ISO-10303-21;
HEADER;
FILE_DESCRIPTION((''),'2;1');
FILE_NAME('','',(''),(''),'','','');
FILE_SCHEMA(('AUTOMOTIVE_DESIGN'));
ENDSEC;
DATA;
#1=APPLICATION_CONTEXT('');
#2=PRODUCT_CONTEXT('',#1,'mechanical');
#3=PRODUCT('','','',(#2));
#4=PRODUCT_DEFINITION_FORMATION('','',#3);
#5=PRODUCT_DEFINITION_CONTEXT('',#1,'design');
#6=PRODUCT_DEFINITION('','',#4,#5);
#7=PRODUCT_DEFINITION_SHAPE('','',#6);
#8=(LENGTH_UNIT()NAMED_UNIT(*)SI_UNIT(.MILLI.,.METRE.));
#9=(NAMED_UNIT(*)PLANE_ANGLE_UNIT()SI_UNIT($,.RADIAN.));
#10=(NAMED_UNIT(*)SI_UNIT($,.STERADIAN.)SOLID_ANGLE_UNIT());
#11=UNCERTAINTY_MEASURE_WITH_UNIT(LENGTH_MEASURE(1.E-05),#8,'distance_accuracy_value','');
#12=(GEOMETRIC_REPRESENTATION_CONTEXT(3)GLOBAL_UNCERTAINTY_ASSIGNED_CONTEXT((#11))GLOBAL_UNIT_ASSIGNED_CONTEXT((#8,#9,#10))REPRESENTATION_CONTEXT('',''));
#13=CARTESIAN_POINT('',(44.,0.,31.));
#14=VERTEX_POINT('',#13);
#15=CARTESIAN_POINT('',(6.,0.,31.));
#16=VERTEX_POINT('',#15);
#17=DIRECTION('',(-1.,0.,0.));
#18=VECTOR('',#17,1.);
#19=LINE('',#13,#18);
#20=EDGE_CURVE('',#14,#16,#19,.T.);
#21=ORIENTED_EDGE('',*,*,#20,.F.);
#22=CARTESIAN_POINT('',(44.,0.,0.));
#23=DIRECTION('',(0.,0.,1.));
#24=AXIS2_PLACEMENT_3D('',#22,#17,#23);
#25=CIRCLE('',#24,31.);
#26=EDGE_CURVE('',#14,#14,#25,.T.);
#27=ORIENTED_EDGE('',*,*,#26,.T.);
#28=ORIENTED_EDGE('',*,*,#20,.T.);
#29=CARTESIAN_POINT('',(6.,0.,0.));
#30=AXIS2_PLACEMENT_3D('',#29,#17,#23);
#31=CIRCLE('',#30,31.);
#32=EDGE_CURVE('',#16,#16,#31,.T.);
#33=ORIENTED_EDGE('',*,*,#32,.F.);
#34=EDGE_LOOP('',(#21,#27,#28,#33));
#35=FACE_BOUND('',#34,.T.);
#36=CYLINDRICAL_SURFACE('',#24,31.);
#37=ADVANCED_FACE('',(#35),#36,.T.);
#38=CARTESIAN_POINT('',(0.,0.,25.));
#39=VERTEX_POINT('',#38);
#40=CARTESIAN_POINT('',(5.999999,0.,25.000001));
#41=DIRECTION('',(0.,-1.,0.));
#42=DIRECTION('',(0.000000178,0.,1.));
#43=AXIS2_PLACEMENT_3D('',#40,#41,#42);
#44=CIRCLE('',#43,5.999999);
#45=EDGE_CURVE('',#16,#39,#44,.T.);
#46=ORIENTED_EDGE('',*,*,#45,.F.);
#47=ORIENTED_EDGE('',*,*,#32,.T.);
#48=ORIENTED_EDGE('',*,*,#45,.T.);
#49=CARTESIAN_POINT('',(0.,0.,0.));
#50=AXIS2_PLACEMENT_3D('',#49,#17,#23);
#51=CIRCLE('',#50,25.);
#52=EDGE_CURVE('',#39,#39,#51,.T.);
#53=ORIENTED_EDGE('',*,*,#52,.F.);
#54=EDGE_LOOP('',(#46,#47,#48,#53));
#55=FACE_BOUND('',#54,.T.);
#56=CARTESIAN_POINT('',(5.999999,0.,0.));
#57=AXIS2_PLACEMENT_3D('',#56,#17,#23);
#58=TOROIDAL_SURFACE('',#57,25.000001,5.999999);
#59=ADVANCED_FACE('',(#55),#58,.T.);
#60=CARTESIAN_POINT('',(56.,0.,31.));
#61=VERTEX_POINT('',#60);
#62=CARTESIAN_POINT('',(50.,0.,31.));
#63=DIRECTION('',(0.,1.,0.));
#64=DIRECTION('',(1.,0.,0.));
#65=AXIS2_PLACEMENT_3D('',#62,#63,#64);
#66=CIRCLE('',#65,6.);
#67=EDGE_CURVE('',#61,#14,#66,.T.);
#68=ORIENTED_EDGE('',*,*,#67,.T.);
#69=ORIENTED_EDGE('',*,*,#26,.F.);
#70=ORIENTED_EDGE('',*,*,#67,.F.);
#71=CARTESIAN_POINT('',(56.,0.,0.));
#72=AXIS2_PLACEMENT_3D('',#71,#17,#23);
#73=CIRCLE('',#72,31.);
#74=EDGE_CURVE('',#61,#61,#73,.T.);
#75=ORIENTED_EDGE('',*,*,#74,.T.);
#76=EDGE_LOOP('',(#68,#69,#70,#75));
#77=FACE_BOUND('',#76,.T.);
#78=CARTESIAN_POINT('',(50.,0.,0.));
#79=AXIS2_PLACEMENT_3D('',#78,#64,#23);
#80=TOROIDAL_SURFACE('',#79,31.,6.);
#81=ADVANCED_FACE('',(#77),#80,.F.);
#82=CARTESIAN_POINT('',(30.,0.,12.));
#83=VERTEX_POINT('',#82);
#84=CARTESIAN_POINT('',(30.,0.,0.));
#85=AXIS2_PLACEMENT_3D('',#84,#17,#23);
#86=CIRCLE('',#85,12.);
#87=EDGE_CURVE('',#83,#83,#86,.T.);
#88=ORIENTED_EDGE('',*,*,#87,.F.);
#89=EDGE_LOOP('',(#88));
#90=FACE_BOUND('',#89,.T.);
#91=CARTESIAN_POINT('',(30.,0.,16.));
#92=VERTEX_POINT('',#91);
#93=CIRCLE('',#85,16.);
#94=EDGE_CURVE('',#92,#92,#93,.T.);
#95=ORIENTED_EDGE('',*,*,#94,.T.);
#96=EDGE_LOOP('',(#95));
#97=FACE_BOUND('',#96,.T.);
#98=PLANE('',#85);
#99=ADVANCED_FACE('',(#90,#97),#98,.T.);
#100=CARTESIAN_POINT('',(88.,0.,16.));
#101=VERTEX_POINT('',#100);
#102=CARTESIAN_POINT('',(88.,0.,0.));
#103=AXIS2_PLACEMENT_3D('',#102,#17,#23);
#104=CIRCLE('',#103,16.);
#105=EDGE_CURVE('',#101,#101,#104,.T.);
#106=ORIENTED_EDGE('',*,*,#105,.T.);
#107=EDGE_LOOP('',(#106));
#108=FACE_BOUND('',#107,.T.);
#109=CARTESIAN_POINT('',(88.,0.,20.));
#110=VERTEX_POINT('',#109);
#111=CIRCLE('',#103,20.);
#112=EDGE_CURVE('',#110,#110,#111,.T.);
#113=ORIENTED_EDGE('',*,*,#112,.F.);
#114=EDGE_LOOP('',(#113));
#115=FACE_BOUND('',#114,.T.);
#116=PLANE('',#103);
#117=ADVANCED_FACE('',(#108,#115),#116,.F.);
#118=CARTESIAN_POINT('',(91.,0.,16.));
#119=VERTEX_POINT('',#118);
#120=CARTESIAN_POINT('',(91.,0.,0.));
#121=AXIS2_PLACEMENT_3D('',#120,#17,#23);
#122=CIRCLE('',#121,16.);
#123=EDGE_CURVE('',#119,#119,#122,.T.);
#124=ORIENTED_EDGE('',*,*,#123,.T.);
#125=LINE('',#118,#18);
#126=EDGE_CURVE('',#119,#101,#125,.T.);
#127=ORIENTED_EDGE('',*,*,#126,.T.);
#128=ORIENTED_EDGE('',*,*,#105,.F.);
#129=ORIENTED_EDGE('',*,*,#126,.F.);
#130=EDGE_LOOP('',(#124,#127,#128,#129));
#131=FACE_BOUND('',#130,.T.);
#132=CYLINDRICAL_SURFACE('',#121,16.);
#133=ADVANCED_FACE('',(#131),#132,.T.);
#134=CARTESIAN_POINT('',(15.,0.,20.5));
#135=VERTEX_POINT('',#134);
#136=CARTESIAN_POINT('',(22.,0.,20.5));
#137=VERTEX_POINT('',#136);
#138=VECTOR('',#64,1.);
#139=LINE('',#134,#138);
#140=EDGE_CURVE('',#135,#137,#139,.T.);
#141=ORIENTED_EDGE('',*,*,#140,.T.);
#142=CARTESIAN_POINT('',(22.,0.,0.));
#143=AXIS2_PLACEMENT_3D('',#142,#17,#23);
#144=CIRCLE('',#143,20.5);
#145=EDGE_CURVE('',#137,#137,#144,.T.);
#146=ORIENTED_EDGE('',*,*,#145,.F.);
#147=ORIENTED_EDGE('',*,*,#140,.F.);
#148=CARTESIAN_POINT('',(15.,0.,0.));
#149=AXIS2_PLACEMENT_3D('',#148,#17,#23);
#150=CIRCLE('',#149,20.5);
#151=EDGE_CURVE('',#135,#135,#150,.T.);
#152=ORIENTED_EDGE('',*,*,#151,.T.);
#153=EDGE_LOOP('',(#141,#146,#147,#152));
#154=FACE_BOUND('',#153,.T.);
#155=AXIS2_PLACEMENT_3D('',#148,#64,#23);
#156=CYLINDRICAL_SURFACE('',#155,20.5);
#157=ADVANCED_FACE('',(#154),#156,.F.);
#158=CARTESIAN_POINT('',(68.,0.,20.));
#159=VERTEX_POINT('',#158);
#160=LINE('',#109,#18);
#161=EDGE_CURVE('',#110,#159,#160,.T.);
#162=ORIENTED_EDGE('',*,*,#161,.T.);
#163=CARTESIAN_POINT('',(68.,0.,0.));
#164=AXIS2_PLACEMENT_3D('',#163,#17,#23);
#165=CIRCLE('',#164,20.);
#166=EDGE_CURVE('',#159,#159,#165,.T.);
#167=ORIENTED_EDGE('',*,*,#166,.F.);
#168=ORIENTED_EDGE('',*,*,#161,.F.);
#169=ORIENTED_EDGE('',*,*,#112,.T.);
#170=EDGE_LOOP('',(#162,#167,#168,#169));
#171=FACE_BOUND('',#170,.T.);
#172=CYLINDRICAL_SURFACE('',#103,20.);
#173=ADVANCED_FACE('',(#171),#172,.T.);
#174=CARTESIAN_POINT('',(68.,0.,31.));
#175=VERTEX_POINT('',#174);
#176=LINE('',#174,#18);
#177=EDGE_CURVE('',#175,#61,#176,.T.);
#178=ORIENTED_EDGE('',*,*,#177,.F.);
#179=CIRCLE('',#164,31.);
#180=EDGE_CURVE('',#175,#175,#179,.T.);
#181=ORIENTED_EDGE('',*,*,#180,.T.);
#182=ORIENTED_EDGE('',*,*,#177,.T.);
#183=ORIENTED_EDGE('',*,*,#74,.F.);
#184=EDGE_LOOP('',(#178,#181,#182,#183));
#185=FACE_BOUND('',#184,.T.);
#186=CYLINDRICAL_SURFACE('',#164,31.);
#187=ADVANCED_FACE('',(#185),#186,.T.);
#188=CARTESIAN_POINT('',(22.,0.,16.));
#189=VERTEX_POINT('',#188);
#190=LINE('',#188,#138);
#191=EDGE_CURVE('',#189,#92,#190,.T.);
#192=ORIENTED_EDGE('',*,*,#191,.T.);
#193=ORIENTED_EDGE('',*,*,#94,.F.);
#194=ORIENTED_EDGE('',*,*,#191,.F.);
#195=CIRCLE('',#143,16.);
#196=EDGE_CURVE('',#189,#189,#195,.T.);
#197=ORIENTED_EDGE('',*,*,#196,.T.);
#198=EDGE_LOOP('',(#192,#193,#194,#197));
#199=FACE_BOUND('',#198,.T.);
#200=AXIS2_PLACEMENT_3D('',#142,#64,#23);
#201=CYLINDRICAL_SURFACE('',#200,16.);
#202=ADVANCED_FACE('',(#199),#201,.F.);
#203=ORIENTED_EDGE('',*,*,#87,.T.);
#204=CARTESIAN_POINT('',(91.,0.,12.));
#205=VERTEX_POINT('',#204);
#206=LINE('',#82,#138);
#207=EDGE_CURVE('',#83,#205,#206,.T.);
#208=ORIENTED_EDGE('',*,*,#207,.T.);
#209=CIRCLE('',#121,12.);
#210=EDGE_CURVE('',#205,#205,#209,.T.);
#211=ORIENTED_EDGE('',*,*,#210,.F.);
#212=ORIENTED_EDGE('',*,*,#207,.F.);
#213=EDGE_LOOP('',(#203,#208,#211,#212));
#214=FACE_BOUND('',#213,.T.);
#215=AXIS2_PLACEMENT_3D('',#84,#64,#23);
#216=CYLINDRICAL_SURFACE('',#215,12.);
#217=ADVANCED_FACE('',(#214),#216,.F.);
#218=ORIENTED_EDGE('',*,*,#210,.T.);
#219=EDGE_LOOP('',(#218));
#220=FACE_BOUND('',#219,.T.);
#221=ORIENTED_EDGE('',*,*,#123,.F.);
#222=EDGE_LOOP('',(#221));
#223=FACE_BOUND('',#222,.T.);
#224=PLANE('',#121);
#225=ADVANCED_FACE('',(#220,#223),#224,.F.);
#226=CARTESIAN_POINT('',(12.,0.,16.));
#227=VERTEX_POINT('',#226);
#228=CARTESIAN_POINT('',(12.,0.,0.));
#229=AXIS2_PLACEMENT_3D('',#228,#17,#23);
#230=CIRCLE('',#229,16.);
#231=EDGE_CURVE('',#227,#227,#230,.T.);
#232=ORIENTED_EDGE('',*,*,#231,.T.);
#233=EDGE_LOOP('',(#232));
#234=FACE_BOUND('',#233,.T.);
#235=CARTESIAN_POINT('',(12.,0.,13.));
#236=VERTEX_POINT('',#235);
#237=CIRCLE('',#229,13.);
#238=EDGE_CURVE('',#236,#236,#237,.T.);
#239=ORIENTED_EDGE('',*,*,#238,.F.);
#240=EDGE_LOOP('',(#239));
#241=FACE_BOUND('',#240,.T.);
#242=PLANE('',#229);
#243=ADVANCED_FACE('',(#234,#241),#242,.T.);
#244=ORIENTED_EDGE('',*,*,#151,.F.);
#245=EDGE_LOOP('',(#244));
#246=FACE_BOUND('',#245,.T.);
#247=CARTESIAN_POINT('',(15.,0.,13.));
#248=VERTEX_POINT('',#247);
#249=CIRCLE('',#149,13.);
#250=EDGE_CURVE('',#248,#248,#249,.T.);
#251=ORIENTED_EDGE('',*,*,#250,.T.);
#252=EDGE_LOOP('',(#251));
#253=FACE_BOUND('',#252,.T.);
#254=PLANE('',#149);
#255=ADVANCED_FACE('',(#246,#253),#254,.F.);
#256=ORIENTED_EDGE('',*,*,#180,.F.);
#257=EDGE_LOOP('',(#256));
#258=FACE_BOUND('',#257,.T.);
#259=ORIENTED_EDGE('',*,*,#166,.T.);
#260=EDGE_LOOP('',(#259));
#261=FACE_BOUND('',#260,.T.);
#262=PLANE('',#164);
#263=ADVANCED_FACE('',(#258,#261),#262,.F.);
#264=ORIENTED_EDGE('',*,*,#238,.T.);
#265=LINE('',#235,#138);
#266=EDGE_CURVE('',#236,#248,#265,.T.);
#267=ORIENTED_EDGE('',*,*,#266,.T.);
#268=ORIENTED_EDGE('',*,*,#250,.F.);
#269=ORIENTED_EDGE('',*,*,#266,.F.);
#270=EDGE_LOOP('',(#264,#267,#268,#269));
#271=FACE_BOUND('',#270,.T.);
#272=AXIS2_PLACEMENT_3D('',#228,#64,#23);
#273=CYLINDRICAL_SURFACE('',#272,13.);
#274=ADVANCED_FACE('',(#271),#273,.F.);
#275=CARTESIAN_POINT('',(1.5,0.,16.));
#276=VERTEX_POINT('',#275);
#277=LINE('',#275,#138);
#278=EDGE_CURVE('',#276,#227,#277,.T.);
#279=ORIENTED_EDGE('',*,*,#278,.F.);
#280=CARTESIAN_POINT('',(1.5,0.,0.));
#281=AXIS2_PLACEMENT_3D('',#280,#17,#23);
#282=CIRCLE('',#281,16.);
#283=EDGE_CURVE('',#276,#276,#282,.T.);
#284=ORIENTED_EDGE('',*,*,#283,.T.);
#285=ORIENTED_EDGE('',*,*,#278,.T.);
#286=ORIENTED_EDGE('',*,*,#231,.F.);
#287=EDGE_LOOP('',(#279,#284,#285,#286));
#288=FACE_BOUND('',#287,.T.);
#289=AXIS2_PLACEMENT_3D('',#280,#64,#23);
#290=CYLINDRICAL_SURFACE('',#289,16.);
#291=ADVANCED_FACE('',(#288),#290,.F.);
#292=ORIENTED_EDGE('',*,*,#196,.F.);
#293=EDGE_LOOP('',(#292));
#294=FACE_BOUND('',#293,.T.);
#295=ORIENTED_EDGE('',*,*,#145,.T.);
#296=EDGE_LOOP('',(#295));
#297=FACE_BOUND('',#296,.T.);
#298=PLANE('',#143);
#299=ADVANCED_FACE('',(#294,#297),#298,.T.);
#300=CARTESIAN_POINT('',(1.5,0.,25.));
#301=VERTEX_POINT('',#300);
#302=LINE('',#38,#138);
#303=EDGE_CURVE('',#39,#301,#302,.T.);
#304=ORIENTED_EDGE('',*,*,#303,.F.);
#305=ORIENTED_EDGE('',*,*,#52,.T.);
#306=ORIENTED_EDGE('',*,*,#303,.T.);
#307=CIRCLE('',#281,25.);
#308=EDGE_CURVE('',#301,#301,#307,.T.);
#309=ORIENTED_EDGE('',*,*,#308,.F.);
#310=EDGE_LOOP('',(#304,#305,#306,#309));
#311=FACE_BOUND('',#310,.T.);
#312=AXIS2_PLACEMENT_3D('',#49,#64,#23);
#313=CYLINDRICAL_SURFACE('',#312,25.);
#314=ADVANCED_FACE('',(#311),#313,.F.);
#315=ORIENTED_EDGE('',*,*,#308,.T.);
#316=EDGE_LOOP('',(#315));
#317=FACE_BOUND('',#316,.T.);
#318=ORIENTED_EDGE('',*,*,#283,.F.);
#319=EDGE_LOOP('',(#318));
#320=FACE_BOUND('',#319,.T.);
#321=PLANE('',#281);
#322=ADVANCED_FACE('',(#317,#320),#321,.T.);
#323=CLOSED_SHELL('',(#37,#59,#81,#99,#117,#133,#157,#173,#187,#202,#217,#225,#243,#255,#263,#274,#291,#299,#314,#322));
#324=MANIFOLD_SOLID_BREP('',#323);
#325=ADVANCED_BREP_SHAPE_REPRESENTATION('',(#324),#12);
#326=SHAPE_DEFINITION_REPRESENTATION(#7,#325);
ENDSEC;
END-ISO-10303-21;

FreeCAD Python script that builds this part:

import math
import FreeCAD as App
import Part
import Sketcher
Q = App.Units.Quantity

doc = App.newDocument("Part")
body = doc.addObject("PartDesign::Body", "Body")

# Sketch on XZ plane
sketch1 = doc.addObject("Sketcher::SketchObject", "Sketch")
body.addObject(sketch1)
sketch1.AttachmentSupport = (doc.XZ_Plane, [""])
sketch1.MapMode = "FlatFace"
sketch1.addGeometry([
    Part.ArcOfCircle(Part.Circle(App.Vector(6, 25, 0), App.Vector(0, 0, 1), 6), math.radians(90), math.radians(180)),  # 0
    Part.LineSegment(App.Vector(0, 25, 0), App.Vector(1.5, 25, 0)),  # 1
    Part.LineSegment(App.Vector(1.5, 25, 0), App.Vector(1.5, 16, 0)),  # 2
    Part.LineSegment(App.Vector(1.5, 16, 0), App.Vector(12, 16, 0)),  # 3
    Part.LineSegment(App.Vector(12, 16, 0), App.Vector(12, 13, 0)),  # 4
    Part.LineSegment(App.Vector(12, 13, 0), App.Vector(15, 13, 0)),  # 5
    Part.LineSegment(App.Vector(15, 13, 0), App.Vector(15, 20.5, 0)),  # 6
    Part.LineSegment(App.Vector(15, 20.5, 0), App.Vector(22, 20.5, 0)),  # 7
    Part.LineSegment(App.Vector(22, 20.5, 0), App.Vector(22, 16, 0)),  # 8
    Part.LineSegment(App.Vector(22, 16, 0), App.Vector(30, 16, 0)),  # 9
    Part.LineSegment(App.Vector(30, 16, 0), App.Vector(30, 12, 0)),  # 10
    Part.LineSegment(App.Vector(30, 12, 0), App.Vector(91, 12, 0)),  # 11
    Part.LineSegment(App.Vector(91, 12, 0), App.Vector(91, 16, 0)),  # 12
    Part.LineSegment(App.Vector(91, 16, 0), App.Vector(88, 16, 0)),  # 13
    Part.LineSegment(App.Vector(88, 16, 0), App.Vector(88, 20, 0)),  # 14
    Part.LineSegment(App.Vector(88, 20, 0), App.Vector(68, 20, 0)),  # 15
    Part.LineSegment(App.Vector(68, 20, 0), App.Vector(68, 31, 0)),  # 16
    Part.LineSegment(App.Vector(68, 31, 0), App.Vector(56, 31, 0)),  # 17
    Part.ArcOfCircle(Part.Circle(App.Vector(50, 31, 0), App.Vector(0, 0, 1), 6), math.radians(180), math.radians(360)),  # 18
    Part.LineSegment(App.Vector(44, 31, 0), App.Vector(6, 31, 0)),  # 19
], False)
sketch1.addConstraint([
    Sketcher.Constraint("Coincident", 0, 2, 1, 1),
    Sketcher.Constraint("Coincident", 1, 2, 2, 1),
    Sketcher.Constraint("Coincident", 2, 2, 3, 1),
    Sketcher.Constraint("Coincident", 3, 2, 4, 1),
    Sketcher.Constraint("Coincident", 4, 2, 5, 1),
    Sketcher.Constraint("Coincident", 5, 2, 6, 1),
    Sketcher.Constraint("Coincident", 6, 2, 7, 1),
    Sketcher.Constraint("Coincident", 7, 2, 8, 1),
    Sketcher.Constraint("Coincident", 8, 2, 9, 1),
    Sketcher.Constraint("Coincident", 9, 2, 10, 1),
    Sketcher.Constraint("Coincident", 10, 2, 11, 1),
    Sketcher.Constraint("Coincident", 11, 2, 12, 1),
    Sketcher.Constraint("Coincident", 12, 2, 13, 1),
    Sketcher.Constraint("Coincident", 13, 2, 14, 1),
    Sketcher.Constraint("Coincident", 14, 2, 15, 1),
    Sketcher.Constraint("Coincident", 15, 2, 16, 1),
    Sketcher.Constraint("Coincident", 16, 2, 17, 1),
    Sketcher.Constraint("Coincident", 17, 2, 18, 2),
    Sketcher.Constraint("Coincident", 18, 1, 19, 1),
    Sketcher.Constraint("Tangent", 19, 2, 0, 1),
    Sketcher.Constraint("Horizontal", 1),
    Sketcher.Constraint("Vertical", 2),
    Sketcher.Constraint("Horizontal", 3),
    Sketcher.Constraint("Vertical", 4),
    Sketcher.Constraint("Horizontal", 5),
    Sketcher.Constraint("Vertical", 6),
    Sketcher.Constraint("Horizontal", 7),
    Sketcher.Constraint("Vertical", 8),
    Sketcher.Constraint("Horizontal", 9),
    Sketcher.Constraint("Vertical", 10),
    Sketcher.Constraint("Horizontal", 11),
    Sketcher.Constraint("Vertical", 12),
    Sketcher.Constraint("Horizontal", 13),
    Sketcher.Constraint("Vertical", 14),
    Sketcher.Constraint("Horizontal", 15),
    Sketcher.Constraint("Vertical", 16),
    Sketcher.Constraint("Horizontal", 17),
    Sketcher.Constraint("Horizontal", 19),
    Sketcher.Constraint("Equal", 0, 18),
    Sketcher.Constraint("PointOnObject", 0, 2, -2),
    Sketcher.Constraint("Horizontal", 3, 2, 8, 2),
    Sketcher.Constraint("Horizontal", 9, 2, 12, 2),
    Sketcher.Constraint("Horizontal", 18, 3, 16, 2),
    Sketcher.Constraint("Horizontal", 17, 2, 18, 1),
    Sketcher.Constraint("Equal", 5, 13),
    Sketcher.Constraint("Equal", 13, 4),
    Sketcher.Constraint("Equal", 12, 14),
    Sketcher.Constraint("Radius", 0, Q("5.999999 mm")),
    Sketcher.Constraint("DistanceX", 5, 1, 5, 2, Q("3 mm")),
    Sketcher.Constraint("DistanceX", 7, 1, 7, 2, Q("7 mm")),
    Sketcher.Constraint("DistanceX", 9, 1, 9, 2, Q("8 mm")),
    Sketcher.Constraint("DistanceX", 11, 1, 11, 2, Q("61 mm")),
    Sketcher.Constraint("DistanceX", 15, 2, 15, 1, Q("20 mm")),
    Sketcher.Constraint("DistanceX", 17, 2, 17, 1, Q("12 mm")),
    Sketcher.Constraint("DistanceX", 19, 2, 19, 1, Q("38 mm")),
    Sketcher.Constraint("DistanceY", 2, 2, 2, 1, Q("9 mm")),
    Sketcher.Constraint("DistanceY", 10, 2, 10, 1, Q("4 mm")),
    Sketcher.Constraint("DistanceY", 16, 1, 16, 2, Q("11 mm")),
    Sketcher.Constraint("DistanceX", 1, 1, 1, 2, Q("1.5 mm")),
    Sketcher.Constraint("DistanceY", 6, 1, 6, 2, Q("7.5 mm")),
    Sketcher.Constraint("DistanceY", -1, 1, 0, 3, Q("25.000001 mm")),
])
revolution = doc.addObject("PartDesign::Revolution", "Revolution")
body.addObject(revolution)
revolution.Profile = sketch1
revolution.ReferenceAxis = (sketch1, ["H_Axis"])
revolution.Angle = 360

doc.recompute()
